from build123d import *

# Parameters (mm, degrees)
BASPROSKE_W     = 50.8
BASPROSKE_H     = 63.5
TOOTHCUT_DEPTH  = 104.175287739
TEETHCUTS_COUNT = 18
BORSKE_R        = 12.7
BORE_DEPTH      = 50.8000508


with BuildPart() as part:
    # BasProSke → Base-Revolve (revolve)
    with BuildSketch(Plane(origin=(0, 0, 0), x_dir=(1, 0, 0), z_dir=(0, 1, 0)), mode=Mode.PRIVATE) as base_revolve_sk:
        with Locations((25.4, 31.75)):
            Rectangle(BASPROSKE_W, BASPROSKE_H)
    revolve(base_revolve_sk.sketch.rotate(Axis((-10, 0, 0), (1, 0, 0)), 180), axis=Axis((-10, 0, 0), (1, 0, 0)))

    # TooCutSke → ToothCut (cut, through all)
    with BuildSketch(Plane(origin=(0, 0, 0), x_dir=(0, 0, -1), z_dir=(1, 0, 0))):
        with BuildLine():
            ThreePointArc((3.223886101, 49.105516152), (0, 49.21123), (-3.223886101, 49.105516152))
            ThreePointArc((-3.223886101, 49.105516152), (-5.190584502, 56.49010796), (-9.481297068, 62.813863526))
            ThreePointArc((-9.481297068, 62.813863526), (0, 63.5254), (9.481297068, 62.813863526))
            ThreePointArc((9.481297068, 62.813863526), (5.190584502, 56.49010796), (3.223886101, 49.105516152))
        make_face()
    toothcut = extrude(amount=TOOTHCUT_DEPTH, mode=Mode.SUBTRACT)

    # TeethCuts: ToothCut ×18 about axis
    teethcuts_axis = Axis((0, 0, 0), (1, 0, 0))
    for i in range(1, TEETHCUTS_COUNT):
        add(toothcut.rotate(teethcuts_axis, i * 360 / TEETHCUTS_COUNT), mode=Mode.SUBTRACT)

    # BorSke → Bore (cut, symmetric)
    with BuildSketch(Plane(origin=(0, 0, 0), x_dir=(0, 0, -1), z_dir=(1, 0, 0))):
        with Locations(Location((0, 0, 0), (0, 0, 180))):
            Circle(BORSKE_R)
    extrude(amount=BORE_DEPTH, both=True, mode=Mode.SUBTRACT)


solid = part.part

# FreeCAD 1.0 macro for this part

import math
import FreeCAD as App
import Part
import Sketcher
from FreeCAD import Vector
Q = App.Units.Quantity


def add_polygon(sketch, points):
    """Adds a closed chain of lines whose ends are joined by coincident constraints."""
    first, n = sketch.GeometryCount, len(points)
    for a, b in zip(points, points[1:] + points[:1]):
        sketch.addGeometry(Part.LineSegment(App.Vector(*a, 0), App.Vector(*b, 0)), False)
    for i in range(n):
        sketch.addConstraint(Sketcher.Constraint("Coincident", first + i, 2, first + (i + 1) % n, 1))

doc = App.newDocument("Part")
body = doc.addObject("PartDesign::Body", "Body")

# Sketch on XZ plane
sketch1 = doc.addObject("Sketcher::SketchObject", "Sketch")
body.addObject(sketch1)
sketch1.AttachmentSupport = (doc.XZ_Plane, [""])
sketch1.MapMode = "FlatFace"
add_polygon(sketch1, [(0, -64), (0, 0), (51, 0), (51, -64)])  # lines 0-3
sketch1.addConstraint([
    Sketcher.Constraint("Vertical", 0),
    Sketcher.Constraint("Horizontal", 1),
    Sketcher.Constraint("Vertical", 2),
    Sketcher.Constraint("Horizontal", 3),
    Sketcher.Constraint("Coincident", 0, 2, -1, 1),
    Sketcher.Constraint("DistanceX", 1, 1, 1, 2, Q("2 in")),
    Sketcher.Constraint("DistanceY", 0, 1, 0, 2, Q("2.5 in")),
])
revolution = doc.addObject("PartDesign::Revolution", "Revolution")
body.addObject(revolution)
revolution.Profile = sketch1
revolution.ReferenceAxis = (sketch1, ["H_Axis"])
revolution.Angle = 360

# Sketch on YZ plane
sketch2 = doc.addObject("Sketcher::SketchObject", "Sketch001")
body.addObject(sketch2)
sketch2.AttachmentSupport = (doc.YZ_Plane, [""])
sketch2.MapMode = "FlatFace"
sketch2.addGeometry([
    Part.ArcOfCircle(Part.Circle(Vector(0, 0, 0), Vector(0, 0, 1), 49), math.radians(-3.76), math.radians(3.76)),
    Part.ArcOfCircle(Part.Circle(Vector(47, -26, 0), Vector(0, 0, 1), 23), math.radians(46), math.radians(85)),
    Part.ArcOfCircle(Part.Circle(Vector(0, 0, 0), Vector(0, 0, 1), 64), math.radians(-8.58), math.radians(8.58)),
    Part.ArcOfCircle(Part.Circle(Vector(47, 26, 0), Vector(0, 0, 1), 23), math.radians(-85), math.radians(-46)),
], False)
sketch2.addConstraint([
    Sketcher.Constraint("Coincident", 0, 1, 1, 2),
    Sketcher.Constraint("Coincident", 1, 1, 2, 1),
    Sketcher.Constraint("Coincident", 2, 2, 3, 2),
    Sketcher.Constraint("Coincident", 3, 1, 0, 2),
    Sketcher.Constraint("Coincident", 0, 3, -1, 1),
    Sketcher.Constraint("Coincident", 2, 3, -1, 1),
    Sketcher.Constraint("Equal", 1, 3),
    Sketcher.Constraint("Symmetric", 1, 3, 3, 3, -1),
    Sketcher.Constraint("Radius", 1, Q("0.9 in")),
    Sketcher.Constraint("Radius", 2, Q("2.501 in")),
    Sketcher.Constraint("Radius", 0, Q("49.21123 mm")),
    Sketcher.Constraint("DistanceX", 1, 3, 1, 1, Q("15.8164 mm")),
    Sketcher.Constraint("DistanceY", 1, 3, -1, 1, Q("25.986481 mm")),
])
pocket1 = doc.addObject("PartDesign::Pocket", "Pocket")
body.addObject(pocket1)
pocket1.Profile = sketch2
pocket1.Type = "ThroughAll"
pocket1.Reversed = True
doc.recompute()

polarpattern = doc.addObject("PartDesign::PolarPattern", "PolarPattern")
body.addObject(polarpattern)
polarpattern.Originals = [pocket1]
polarpattern.Axis = (doc.X_Axis, [""])
polarpattern.Angle = 360
polarpattern.Occurrences = 18
body.Tip = polarpattern

# Sketch on YZ plane
sketch3 = doc.addObject("Sketcher::SketchObject", "Sketch002")
body.addObject(sketch3)
sketch3.AttachmentSupport = (doc.YZ_Plane, [""])
sketch3.MapMode = "FlatFace"
sketch3.addGeometry(Part.Circle(Vector(0, 0, 0), Vector(0, 0, 1), 13), False)
sketch3.addConstraint([
    Sketcher.Constraint("Coincident", 0, 3, -1, 1),
    Sketcher.Constraint("Diameter", 0, Q("1 in")),
])
pocket2 = doc.addObject("PartDesign::Pocket", "Pocket001")
body.addObject(pocket2)
pocket2.Profile = sketch3
pocket2.Length = 101.600102
pocket2.Midplane = True

doc.recompute()
